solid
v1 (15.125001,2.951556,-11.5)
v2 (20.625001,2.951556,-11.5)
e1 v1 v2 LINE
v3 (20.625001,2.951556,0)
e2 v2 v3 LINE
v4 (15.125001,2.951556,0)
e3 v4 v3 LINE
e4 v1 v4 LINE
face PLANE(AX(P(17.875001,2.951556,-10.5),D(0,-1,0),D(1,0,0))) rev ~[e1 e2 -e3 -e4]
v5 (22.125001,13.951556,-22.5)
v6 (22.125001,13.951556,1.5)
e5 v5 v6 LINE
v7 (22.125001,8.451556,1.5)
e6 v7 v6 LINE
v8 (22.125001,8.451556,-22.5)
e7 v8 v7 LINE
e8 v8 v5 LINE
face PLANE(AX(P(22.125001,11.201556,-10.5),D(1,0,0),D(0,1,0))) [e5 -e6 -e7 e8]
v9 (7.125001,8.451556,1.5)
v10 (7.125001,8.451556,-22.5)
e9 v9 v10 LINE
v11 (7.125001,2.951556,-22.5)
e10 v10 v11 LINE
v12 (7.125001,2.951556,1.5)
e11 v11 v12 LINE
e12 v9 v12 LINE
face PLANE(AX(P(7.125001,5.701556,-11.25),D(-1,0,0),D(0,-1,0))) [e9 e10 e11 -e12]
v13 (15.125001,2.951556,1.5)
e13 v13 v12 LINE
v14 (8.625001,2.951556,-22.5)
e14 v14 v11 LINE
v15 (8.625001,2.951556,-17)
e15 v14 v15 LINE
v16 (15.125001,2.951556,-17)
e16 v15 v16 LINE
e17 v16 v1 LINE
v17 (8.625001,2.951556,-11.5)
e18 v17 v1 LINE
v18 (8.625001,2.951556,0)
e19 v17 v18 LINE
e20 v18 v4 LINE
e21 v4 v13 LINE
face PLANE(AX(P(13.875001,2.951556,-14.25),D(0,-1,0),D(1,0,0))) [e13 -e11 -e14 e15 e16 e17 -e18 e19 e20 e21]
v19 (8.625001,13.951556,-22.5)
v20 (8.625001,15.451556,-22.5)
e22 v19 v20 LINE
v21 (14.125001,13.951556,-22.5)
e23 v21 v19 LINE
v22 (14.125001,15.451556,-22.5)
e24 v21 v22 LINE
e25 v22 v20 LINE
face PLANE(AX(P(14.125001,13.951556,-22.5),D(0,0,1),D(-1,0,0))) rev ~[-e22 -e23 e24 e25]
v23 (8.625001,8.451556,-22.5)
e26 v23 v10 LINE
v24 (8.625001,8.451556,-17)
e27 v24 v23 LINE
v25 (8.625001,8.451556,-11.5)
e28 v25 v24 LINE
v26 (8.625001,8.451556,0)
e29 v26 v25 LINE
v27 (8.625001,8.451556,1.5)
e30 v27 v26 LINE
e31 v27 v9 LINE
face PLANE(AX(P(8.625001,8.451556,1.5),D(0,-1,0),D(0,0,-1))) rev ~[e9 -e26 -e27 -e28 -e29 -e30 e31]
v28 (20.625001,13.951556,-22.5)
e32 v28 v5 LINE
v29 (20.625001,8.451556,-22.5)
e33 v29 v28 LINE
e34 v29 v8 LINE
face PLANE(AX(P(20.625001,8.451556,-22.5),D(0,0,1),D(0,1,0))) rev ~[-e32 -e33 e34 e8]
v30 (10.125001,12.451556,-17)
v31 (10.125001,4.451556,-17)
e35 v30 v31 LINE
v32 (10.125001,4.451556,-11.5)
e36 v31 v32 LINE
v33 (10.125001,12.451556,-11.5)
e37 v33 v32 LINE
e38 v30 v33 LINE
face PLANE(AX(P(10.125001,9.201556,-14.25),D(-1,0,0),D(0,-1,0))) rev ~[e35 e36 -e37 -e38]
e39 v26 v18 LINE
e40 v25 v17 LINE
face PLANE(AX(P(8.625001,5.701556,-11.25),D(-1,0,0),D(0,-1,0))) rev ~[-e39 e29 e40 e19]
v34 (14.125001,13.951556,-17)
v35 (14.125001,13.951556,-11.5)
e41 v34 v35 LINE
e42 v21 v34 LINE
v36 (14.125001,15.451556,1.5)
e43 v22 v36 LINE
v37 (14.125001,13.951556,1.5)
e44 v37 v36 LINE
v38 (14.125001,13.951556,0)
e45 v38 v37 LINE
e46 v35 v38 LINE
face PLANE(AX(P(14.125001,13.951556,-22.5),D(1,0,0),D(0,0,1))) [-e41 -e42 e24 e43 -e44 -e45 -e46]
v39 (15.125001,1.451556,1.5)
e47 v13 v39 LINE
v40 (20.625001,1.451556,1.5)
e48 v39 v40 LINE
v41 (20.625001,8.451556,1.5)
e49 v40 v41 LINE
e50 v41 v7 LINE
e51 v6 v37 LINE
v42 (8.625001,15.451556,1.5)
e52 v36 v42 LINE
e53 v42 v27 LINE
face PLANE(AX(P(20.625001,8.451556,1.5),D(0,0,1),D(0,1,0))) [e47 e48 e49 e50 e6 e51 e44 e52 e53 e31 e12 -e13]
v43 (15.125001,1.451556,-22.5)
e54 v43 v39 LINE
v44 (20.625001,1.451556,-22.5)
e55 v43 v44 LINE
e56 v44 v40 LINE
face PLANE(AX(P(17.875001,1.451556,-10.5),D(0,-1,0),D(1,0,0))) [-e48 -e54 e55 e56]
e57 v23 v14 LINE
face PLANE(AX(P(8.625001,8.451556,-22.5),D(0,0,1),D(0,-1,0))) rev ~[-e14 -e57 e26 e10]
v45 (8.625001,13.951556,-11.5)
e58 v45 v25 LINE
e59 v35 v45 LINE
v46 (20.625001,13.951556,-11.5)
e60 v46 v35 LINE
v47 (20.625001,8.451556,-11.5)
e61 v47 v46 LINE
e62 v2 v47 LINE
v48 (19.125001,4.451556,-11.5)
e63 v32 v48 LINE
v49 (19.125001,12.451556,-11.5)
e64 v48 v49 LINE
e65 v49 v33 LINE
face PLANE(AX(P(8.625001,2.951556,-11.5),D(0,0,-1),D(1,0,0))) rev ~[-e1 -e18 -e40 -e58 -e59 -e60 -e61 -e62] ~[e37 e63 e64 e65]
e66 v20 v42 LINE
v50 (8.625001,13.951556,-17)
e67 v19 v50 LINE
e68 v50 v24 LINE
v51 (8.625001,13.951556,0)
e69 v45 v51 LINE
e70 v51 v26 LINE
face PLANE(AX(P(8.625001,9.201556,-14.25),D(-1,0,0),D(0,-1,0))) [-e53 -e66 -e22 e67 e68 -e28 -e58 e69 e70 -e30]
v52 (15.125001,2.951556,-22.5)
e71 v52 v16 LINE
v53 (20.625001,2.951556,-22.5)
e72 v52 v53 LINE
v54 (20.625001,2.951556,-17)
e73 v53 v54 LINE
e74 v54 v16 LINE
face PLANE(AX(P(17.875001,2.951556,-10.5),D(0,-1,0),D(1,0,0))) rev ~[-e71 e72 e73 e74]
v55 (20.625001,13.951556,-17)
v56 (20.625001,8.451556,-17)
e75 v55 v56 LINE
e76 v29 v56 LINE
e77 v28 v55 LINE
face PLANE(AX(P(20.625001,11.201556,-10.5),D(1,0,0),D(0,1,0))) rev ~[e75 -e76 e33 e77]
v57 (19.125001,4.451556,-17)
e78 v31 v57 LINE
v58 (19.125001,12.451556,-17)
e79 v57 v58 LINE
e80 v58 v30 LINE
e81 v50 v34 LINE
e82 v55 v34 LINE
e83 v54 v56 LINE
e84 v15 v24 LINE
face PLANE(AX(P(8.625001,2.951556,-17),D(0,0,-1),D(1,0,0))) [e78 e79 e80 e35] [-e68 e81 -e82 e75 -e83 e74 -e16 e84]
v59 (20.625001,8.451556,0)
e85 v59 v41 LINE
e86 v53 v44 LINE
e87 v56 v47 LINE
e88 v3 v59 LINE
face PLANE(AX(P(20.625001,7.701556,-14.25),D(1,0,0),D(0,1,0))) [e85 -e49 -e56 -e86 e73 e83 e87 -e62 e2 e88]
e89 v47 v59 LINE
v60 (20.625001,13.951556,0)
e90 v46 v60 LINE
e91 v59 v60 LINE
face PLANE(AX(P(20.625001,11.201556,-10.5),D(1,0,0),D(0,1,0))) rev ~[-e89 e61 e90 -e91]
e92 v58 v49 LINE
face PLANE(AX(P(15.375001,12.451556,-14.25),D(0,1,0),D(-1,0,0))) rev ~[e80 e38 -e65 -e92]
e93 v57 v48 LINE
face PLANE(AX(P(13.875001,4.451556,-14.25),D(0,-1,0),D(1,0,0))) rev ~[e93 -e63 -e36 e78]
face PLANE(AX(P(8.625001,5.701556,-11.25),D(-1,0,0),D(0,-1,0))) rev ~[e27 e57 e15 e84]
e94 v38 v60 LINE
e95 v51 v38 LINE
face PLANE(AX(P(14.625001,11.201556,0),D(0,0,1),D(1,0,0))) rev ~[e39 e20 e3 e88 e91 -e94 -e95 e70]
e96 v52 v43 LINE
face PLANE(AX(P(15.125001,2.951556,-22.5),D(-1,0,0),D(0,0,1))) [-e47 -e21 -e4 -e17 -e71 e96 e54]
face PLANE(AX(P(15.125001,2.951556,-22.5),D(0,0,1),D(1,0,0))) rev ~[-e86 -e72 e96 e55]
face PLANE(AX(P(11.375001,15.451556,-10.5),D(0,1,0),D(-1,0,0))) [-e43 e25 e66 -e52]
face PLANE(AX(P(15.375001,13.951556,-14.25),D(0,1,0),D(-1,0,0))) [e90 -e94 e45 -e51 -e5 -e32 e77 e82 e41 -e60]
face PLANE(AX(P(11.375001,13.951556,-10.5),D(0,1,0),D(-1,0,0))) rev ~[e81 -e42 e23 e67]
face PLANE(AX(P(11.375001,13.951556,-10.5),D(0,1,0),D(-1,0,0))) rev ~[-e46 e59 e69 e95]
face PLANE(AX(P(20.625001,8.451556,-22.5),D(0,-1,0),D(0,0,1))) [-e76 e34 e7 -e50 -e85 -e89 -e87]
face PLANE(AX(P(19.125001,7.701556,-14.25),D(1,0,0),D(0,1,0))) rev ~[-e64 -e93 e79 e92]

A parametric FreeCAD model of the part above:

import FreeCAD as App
import Part
import Sketcher


def add_polygon(sketch, points):
    """Adds a closed chain of lines whose ends are joined by coincident constraints."""
    first, n = sketch.GeometryCount, len(points)
    for a, b in zip(points, points[1:] + points[:1]):
        sketch.addGeometry(Part.LineSegment(App.Vector(*a, 0), App.Vector(*b, 0)), False)
    for i in range(n):
        sketch.addConstraint(Sketcher.Constraint("Coincident", first + i, 2, first + (i + 1) % n, 1))

doc = App.newDocument("Part")
body = doc.addObject("PartDesign::Body", "Body")

# Sketch on XY plane
sketch1 = doc.addObject("Sketcher::SketchObject", "Sketch")
body.addObject(sketch1)
sketch1.AttachmentSupport = (doc.XY_Plane, [""])
sketch1.MapMode = "FlatFace"
add_polygon(sketch1, [(9, 14), (9, 3), (21, 3), (21, 14)])  # lines 0-3
sketch1.addConstraint([
    Sketcher.Constraint("Vertical", 0),
    Sketcher.Constraint("Horizontal", 1),
    Sketcher.Constraint("Vertical", 2),
    Sketcher.Constraint("Horizontal", 3),
    Sketcher.Constraint("DistanceX", 1, 1, 1, 2, 12.0),
    Sketcher.Constraint("DistanceY", 0, 2, 0, 1, 11.0),
    Sketcher.Constraint("DistanceX", -1, 1, 0, 2, 8.625001),
    Sketcher.Constraint("DistanceY", -1, 1, 0, 2, 2.951556),
])
pad1 = doc.addObject("PartDesign::Pad", "Pad")
body.addObject(pad1)
pad1.Profile = sketch1
pad1.Length = 1.5

# Sketch on XZ plane
sketch2 = doc.addObject("Sketcher::SketchObject", "Sketch001")
body.addObject(sketch2)
sketch2.AttachmentSupport = (doc.XZ_Plane, [""])
sketch2.MapMode = "FlatFace"
sketch2.AttachmentOffset = App.Placement(App.Vector(0, 0, -2.951556), App.Rotation())
add_polygon(sketch2, [(15, 2), (15, -22), (21, -22), (21, 2)])  # lines 0-3
sketch2.addConstraint([
    Sketcher.Constraint("Vertical", 0),
    Sketcher.Constraint("Horizontal", 1),
    Sketcher.Constraint("Vertical", 2),
    Sketcher.Constraint("Horizontal", 3),
    Sketcher.Constraint("DistanceY", 0, 2, 0, 1, 24.0),
    Sketcher.Constraint("DistanceX", 1, 1, 1, 2, 5.5),
    Sketcher.Constraint("DistanceY", 0, 2, -1, 1, 22.5),
    Sketcher.Constraint("DistanceX", -1, 1, 0, 2, 15.125001),
])
pad2 = doc.addObject("PartDesign::Pad", "Pad001")
body.addObject(pad2)
pad2.Profile = sketch2
pad2.Length = 1.5

# Sketch on YZ plane
sketch3 = doc.addObject("Sketcher::SketchObject", "Sketch002")
body.addObject(sketch3)
sketch3.AttachmentSupport = (doc.YZ_Plane, [""])
sketch3.MapMode = "FlatFace"
sketch3.AttachmentOffset = App.Placement(App.Vector(0, 0, 8.625001), App.Rotation())
add_polygon(sketch3, [(8, -22), (3, -22), (3, 2), (8, 2)])  # lines 0-3
sketch3.addConstraint([
    Sketcher.Constraint("Horizontal", 0),
    Sketcher.Constraint("Vertical", 1),
    Sketcher.Constraint("Horizontal", 2),
    Sketcher.Constraint("Vertical", 3),
    Sketcher.Constraint("DistanceY", 1, 1, 1, 2, 24.0),
    Sketcher.Constraint("DistanceX", 0, 2, 0, 1, 5.5),
    Sketcher.Constraint("DistanceY", 0, 2, -1, 1, 22.5),
    Sketcher.Constraint("DistanceX", -1, 1, 0, 2, 2.951556),
])
pad3 = doc.addObject("PartDesign::Pad", "Pad002")
body.addObject(pad3)
pad3.Profile = sketch3
pad3.Length = 1.5
pad3.Reversed = True

# Sketch on XZ plane
sketch4 = doc.addObject("Sketcher::SketchObject", "Sketch003")
body.addObject(sketch4)
sketch4.AttachmentSupport = (doc.XZ_Plane, [""])
sketch4.MapMode = "FlatFace"
sketch4.AttachmentOffset = App.Placement(App.Vector(0, 0, -13.951556), App.Rotation())
add_polygon(sketch4, [(14, 2), (14, -22), (9, -22), (9, 2)])  # lines 0-3
sketch4.addConstraint([
    Sketcher.Constraint("Vertical", 0),
    Sketcher.Constraint("Horizontal", 1),
    Sketcher.Constraint("Vertical", 2),
    Sketcher.Constraint("Horizontal", 3),
    Sketcher.Constraint("DistanceY", 0, 2, 0, 1, 24.0),
    Sketcher.Constraint("DistanceX", 1, 2, 1, 1, 5.5),
    Sketcher.Constraint("DistanceY", 0, 2, -1, 1, 22.5),
    Sketcher.Constraint("DistanceX", -1, 1, 0, 2, 14.125001),
])
pad4 = doc.addObject("PartDesign::Pad", "Pad003")
body.addObject(pad4)
pad4.Profile = sketch4
pad4.Length = 1.5
pad4.Reversed = True

# Sketch on YZ plane
sketch5 = doc.addObject("Sketcher::SketchObject", "Sketch004")
body.addObject(sketch5)
sketch5.AttachmentSupport = (doc.YZ_Plane, [""])
sketch5.MapMode = "FlatFace"
sketch5.AttachmentOffset = App.Placement(App.Vector(0, 0, 20.625001), App.Rotation())
add_polygon(sketch5, [(8, 2), (8, -22), (14, -22), (14, 2)])  # lines 0-3
sketch5.addConstraint([
    Sketcher.Constraint("Vertical", 0),
    Sketcher.Constraint("Horizontal", 1),
    Sketcher.Constraint("Vertical", 2),
    Sketcher.Constraint("Horizontal", 3),
    Sketcher.Constraint("DistanceY", 0, 2, 0, 1, 24.0),
    Sketcher.Constraint("DistanceX", 1, 1, 1, 2, 5.5),
    Sketcher.Constraint("DistanceY", 0, 2, -1, 1, 22.5),
    Sketcher.Constraint("DistanceX", -1, 1, 0, 2, 8.451556),
])
pad5 = doc.addObject("PartDesign::Pad", "Pad004")
body.addObject(pad5)
pad5.Profile = sketch5
pad5.Length = 1.5

# Sketch on YZ plane
sketch6 = doc.addObject("Sketcher::SketchObject", "Sketch005")
body.addObject(sketch6)
sketch6.AttachmentSupport = (doc.YZ_Plane, [""])
sketch6.MapMode = "FlatFace"
sketch6.AttachmentOffset = App.Placement(App.Vector(0, 0, 8.625001), App.Rotation())
add_polygon(sketch6, [(14, -12), (14, -17), (4, -17), (4, -12)])  # lines 0-3
sketch6.addConstraint([
    Sketcher.Constraint("Vertical", 0),
    Sketcher.Constraint("Horizontal", 1),
    Sketcher.Constraint("Vertical", 2),
    Sketcher.Constraint("Horizontal", 3),
    Sketcher.Constraint("DistanceX", 1, 2, 1, 1, 9.5),
    Sketcher.Constraint("DistanceY", 0, 2, 0, 1, 5.5),
    Sketcher.Constraint("DistanceY", 0, 2, -1, 1, 17.0),
    Sketcher.Constraint("DistanceX", -1, 1, 0, 2, 13.951556),
])
pad6 = doc.addObject("PartDesign::Pad", "Pad005")
body.addObject(pad6)
pad6.Profile = sketch6
pad6.Length = 1.5

# Sketch on XZ plane
sketch7 = doc.addObject("Sketcher::SketchObject", "Sketch006")
body.addObject(sketch7)
sketch7.AttachmentSupport = (doc.XZ_Plane, [""])
sketch7.MapMode = "FlatFace"
sketch7.AttachmentOffset = App.Placement(App.Vector(0, 0, -13.951556), App.Rotation())
add_polygon(sketch7, [(21, -12), (21, -17), (10, -17), (10, -12)])  # lines 0-3
sketch7.addConstraint([
    Sketcher.Constraint("Vertical", 0),
    Sketcher.Constraint("Horizontal", 1),
    Sketcher.Constraint("Vertical", 2),
    Sketcher.Constraint("Horizontal", 3),
    Sketcher.Constraint("DistanceX", 1, 2, 1, 1, 10.5),
    Sketcher.Constraint("DistanceY", 0, 2, 0, 1, 5.5),
    Sketcher.Constraint("DistanceY", 0, 2, -1, 1, 17.0),
    Sketcher.Constraint("DistanceX", -1, 1, 0, 2, 20.625001),
])
pad7 = doc.addObject("PartDesign::Pad", "Pad006")
body.addObject(pad7)
pad7.Profile = sketch7
pad7.Length = 1.5

# Sketch on YZ plane
sketch8 = doc.addObject("Sketcher::SketchObject", "Sketch007")
body.addObject(sketch8)
sketch8.AttachmentSupport = (doc.YZ_Plane, [""])
sketch8.MapMode = "FlatFace"
sketch8.AttachmentOffset = App.Placement(App.Vector(0, 0, 20.625001), App.Rotation())
add_polygon(sketch8, [(3, -12), (3, -17), (12, -17), (12, -12)])  # lines 0-3
sketch8.addConstraint([
    Sketcher.Constraint("Vertical", 0),
    Sketcher.Constraint("Horizontal", 1),
    Sketcher.Constraint("Vertical", 2),
    Sketcher.Constraint("Horizontal", 3),
    Sketcher.Constraint("DistanceX", 1, 1, 1, 2, 9.5),
    Sketcher.Constraint("DistanceY", 0, 2, 0, 1, 5.5),
    Sketcher.Constraint("DistanceY", 0, 2, -1, 1, 17.0),
    Sketcher.Constraint("DistanceX", -1, 1, 0, 2, 2.951556),
])
pad8 = doc.addObject("PartDesign::Pad", "Pad007")
body.addObject(pad8)
pad8.Profile = sketch8
pad8.Length = 1.5
pad8.Reversed = True

# Sketch on XZ plane
sketch9 = doc.addObject("Sketcher::SketchObject", "Sketch008")
body.addObject(sketch9)
sketch9.AttachmentSupport = (doc.XZ_Plane, [""])
sketch9.MapMode = "FlatFace"
sketch9.AttachmentOffset = App.Placement(App.Vector(0, 0, -2.951556), App.Rotation())
add_polygon(sketch9, [(9, -12), (9, -17), (19, -17), (19, -12)])  # lines 0-3
sketch9.addConstraint([
    Sketcher.Constraint("Vertical", 0),
    Sketcher.Constraint("Horizontal", 1),
    Sketcher.Constraint("Vertical", 2),
    Sketcher.Constraint("Horizontal", 3),
    Sketcher.Constraint("DistanceX", 1, 1, 1, 2, 10.5),
    Sketcher.Constraint("DistanceY", 0, 2, 0, 1, 5.5),
    Sketcher.Constraint("DistanceY", 0, 2, -1, 1, 17.0),
    Sketcher.Constraint("DistanceX", -1, 1, 0, 2, 8.625001),
])
pad9 = doc.addObject("PartDesign::Pad", "Pad008")
body.addObject(pad9)
pad9.Profile = sketch9
pad9.Length = 1.5
pad9.Reversed = True

doc.recompute()
